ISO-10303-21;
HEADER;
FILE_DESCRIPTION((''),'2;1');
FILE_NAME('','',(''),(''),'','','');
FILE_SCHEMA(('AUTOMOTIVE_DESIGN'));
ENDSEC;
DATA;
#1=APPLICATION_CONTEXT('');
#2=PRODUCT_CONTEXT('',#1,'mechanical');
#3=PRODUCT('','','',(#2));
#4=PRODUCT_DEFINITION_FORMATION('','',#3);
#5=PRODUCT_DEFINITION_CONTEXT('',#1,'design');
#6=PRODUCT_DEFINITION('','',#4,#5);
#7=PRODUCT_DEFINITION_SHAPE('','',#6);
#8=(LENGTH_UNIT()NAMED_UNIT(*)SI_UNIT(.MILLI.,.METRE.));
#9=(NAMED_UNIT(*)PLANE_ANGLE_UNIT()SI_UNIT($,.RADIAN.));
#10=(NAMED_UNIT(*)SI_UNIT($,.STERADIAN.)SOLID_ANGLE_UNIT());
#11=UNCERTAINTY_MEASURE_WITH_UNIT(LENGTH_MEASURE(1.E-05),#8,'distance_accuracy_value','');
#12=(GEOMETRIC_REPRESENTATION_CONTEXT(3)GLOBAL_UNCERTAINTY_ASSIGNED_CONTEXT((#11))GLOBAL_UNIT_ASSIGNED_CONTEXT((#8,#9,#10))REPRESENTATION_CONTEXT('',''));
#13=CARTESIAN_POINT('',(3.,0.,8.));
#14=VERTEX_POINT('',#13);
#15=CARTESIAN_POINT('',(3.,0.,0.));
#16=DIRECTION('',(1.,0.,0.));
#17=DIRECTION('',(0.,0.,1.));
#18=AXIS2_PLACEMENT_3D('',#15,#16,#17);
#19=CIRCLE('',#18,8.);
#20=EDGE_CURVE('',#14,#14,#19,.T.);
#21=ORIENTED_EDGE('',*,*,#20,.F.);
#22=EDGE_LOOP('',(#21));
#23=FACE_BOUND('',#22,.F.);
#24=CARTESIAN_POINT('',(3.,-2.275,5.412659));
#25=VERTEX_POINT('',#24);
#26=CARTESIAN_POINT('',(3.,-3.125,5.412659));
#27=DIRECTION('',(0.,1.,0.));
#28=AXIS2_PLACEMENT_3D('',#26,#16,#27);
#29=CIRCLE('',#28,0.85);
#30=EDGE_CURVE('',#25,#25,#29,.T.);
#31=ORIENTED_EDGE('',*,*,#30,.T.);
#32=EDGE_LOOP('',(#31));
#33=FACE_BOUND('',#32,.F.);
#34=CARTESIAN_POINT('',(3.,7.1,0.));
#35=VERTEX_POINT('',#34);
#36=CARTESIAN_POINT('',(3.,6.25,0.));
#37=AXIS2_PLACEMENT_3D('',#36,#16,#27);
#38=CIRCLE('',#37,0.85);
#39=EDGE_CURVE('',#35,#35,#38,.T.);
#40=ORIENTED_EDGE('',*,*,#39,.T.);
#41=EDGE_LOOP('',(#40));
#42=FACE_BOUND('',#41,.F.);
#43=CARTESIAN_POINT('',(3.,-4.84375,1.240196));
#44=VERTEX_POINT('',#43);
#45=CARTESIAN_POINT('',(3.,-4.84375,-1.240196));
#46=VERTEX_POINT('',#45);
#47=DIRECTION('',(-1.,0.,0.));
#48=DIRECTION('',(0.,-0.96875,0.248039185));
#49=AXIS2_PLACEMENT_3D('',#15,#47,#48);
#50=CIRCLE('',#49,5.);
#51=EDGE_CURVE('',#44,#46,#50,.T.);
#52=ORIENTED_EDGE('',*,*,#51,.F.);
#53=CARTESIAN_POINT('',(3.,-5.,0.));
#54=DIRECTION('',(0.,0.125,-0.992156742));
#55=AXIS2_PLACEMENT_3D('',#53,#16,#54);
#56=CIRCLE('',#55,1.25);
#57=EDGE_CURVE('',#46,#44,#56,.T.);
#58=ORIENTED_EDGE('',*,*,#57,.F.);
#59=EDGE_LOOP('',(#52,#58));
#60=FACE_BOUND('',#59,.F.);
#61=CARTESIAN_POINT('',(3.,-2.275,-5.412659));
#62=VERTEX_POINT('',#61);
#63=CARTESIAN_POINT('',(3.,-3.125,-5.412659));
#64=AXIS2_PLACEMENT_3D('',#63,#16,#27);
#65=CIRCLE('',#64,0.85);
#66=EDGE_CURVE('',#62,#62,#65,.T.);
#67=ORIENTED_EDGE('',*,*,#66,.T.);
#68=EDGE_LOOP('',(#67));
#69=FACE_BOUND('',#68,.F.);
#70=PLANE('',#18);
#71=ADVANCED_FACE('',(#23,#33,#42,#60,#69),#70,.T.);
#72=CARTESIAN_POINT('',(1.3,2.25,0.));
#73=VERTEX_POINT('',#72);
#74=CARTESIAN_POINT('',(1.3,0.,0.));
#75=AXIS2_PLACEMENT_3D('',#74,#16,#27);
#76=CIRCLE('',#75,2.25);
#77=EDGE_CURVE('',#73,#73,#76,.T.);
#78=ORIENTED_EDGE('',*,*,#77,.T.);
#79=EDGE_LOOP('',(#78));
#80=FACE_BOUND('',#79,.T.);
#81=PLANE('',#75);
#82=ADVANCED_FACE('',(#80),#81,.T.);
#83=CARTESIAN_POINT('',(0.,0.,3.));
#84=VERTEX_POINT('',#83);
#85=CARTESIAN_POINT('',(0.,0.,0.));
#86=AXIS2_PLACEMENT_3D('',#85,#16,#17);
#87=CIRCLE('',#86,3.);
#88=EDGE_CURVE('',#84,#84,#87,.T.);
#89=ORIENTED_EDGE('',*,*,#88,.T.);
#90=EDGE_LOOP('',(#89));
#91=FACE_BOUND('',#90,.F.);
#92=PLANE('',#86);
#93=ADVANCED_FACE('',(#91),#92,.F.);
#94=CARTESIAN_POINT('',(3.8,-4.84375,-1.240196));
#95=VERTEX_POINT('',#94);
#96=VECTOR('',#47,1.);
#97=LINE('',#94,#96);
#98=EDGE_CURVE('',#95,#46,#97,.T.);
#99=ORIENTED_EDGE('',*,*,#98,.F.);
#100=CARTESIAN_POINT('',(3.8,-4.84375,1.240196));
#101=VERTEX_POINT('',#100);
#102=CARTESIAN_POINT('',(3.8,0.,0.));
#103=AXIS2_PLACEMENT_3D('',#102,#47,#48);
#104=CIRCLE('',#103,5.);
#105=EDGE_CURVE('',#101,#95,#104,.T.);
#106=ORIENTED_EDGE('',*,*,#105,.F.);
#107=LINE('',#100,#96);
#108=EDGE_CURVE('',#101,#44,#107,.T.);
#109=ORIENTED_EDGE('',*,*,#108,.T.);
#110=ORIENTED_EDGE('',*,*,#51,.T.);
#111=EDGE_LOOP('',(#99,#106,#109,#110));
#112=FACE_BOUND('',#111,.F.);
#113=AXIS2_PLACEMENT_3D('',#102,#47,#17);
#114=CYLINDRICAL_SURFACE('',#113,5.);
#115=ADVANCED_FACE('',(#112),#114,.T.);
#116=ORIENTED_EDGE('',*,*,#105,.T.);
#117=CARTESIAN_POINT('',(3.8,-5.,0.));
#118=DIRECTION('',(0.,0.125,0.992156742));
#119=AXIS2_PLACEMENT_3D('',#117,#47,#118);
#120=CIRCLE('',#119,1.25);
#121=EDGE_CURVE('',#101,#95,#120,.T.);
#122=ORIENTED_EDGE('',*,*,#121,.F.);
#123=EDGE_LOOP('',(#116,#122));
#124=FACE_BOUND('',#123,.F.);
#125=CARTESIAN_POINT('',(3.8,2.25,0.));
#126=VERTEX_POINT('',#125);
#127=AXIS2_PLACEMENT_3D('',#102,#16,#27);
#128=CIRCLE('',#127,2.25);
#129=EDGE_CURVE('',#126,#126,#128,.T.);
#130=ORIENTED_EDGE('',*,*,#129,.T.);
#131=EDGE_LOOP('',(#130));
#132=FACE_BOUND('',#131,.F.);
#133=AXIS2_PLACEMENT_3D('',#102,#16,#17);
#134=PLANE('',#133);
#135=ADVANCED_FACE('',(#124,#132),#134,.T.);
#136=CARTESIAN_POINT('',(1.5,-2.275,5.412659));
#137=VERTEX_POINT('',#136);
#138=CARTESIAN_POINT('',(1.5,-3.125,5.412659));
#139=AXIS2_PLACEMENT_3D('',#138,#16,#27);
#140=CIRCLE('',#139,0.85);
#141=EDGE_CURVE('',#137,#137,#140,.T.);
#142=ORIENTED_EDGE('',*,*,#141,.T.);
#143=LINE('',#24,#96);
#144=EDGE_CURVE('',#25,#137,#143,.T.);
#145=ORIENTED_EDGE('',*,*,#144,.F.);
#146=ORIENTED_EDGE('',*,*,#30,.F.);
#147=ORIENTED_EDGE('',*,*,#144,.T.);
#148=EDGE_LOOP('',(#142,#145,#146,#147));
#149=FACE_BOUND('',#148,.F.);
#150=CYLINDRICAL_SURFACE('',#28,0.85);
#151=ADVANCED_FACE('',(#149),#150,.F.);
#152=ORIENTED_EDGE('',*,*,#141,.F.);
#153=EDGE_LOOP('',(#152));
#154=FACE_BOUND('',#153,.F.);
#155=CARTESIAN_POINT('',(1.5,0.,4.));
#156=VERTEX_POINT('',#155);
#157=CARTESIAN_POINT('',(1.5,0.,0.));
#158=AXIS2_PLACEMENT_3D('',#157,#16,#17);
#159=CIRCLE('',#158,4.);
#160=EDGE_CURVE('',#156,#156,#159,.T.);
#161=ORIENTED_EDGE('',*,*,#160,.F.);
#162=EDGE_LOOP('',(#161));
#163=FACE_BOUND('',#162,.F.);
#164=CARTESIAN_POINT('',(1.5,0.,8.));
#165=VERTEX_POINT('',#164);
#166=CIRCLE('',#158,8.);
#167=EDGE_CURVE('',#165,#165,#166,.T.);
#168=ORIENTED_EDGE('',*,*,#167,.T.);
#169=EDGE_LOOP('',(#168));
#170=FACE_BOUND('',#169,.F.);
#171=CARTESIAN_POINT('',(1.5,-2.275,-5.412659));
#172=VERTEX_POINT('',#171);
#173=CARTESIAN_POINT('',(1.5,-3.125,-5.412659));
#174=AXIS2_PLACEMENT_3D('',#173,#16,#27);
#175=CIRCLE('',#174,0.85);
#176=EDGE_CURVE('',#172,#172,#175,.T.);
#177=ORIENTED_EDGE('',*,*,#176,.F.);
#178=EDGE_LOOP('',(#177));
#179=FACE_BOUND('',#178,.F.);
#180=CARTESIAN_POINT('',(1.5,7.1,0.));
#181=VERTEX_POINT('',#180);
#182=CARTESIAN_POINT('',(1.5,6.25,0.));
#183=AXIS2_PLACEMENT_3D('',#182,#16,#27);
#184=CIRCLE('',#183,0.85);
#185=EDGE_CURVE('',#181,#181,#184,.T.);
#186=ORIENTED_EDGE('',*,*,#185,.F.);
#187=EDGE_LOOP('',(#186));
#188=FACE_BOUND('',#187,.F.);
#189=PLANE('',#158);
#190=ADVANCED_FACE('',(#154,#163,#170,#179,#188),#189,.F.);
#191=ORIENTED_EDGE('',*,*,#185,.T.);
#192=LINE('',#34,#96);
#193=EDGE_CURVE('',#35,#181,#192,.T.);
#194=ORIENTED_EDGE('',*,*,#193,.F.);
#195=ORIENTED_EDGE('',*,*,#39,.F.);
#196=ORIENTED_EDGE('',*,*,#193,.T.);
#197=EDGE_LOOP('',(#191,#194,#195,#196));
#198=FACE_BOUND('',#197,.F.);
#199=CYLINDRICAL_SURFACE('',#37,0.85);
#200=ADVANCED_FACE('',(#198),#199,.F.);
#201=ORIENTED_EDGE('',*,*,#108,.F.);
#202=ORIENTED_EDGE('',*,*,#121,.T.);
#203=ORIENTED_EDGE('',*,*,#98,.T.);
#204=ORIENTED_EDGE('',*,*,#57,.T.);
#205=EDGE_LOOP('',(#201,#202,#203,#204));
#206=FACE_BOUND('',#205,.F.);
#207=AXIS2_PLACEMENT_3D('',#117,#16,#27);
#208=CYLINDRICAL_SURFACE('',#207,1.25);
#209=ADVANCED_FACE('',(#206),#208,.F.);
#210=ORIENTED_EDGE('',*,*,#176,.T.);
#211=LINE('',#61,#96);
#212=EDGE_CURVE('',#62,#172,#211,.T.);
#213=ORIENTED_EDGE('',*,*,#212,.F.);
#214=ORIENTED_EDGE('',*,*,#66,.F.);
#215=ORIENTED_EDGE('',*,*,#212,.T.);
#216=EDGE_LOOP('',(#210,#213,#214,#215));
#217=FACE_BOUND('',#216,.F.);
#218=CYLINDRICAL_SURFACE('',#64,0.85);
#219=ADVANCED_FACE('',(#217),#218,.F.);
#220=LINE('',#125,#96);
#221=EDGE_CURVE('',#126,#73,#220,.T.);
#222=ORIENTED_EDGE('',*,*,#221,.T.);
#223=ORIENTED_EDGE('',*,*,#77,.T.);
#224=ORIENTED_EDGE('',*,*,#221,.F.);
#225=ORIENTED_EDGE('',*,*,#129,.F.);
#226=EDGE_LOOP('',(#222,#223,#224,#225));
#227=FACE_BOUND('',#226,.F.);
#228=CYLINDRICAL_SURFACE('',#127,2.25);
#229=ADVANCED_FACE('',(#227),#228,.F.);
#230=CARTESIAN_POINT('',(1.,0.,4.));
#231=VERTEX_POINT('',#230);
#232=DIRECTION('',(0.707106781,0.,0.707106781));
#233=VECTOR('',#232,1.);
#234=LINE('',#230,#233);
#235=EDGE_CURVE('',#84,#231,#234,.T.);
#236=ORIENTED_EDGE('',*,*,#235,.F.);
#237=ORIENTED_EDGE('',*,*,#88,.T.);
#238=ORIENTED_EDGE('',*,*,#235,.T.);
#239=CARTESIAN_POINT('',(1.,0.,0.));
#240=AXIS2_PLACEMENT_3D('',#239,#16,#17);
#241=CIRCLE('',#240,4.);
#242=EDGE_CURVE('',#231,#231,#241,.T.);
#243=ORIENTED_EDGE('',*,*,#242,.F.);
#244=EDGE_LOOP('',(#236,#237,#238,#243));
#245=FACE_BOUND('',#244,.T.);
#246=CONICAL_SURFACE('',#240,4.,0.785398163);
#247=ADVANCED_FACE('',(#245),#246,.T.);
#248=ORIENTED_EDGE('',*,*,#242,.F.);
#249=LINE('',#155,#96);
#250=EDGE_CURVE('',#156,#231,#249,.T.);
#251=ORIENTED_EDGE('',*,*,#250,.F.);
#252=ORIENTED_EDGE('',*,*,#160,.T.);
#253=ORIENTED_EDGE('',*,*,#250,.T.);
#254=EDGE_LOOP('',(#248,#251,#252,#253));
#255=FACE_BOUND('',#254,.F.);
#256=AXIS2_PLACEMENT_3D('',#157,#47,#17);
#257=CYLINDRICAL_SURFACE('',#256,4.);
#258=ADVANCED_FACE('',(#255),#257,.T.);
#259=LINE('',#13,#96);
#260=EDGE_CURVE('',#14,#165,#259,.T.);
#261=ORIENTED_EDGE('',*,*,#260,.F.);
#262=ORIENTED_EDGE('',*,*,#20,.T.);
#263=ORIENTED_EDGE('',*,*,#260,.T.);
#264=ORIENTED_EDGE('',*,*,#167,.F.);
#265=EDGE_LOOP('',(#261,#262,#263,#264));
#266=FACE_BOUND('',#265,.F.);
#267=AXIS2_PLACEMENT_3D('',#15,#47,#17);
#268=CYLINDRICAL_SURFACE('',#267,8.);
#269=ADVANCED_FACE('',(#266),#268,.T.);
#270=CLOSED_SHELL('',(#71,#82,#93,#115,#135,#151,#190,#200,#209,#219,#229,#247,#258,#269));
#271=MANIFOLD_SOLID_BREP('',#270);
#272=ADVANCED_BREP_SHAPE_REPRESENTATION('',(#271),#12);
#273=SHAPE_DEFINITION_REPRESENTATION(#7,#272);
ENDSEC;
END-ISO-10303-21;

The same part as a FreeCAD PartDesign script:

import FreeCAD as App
import Part
import Sketcher
from FreeCAD import Vector
Q = App.Units.Quantity


def edges_at(feature, points):
    """Names of the edges that pass closest to the given points."""
    edges = feature.Shape.Edges
    near = lambda p: min(range(len(edges)), key=lambda i: edges[i].distToShape(Part.Vertex(*p))[0])
    return sorted({f"Edge{near(p) + 1}" for p in points})

doc = App.newDocument("Part")
body = doc.addObject("PartDesign::Body", "Body")

# Sketch on XZ plane
sketch1 = body.newObject("Sketcher::SketchObject", "Sketch")
sketch1.AttachmentSupport = (doc.getObject("XZ_Plane"), [""])
sketch1.MapMode = "FlatFace"
sketch1.addGeometry([
    Part.LineSegment(Vector(0, 4, 0), Vector(0, 0, 0)),  # 0
    Part.LineSegment(Vector(0, 0, 0), Vector(3.8, 0, 0)),  # 1
    Part.LineSegment(Vector(3.8, 0, 0), Vector(3.8, 5, 0)),  # 2
    Part.LineSegment(Vector(3.8, 5, 0), Vector(3, 5, 0)),  # 3
    Part.LineSegment(Vector(3, 5, 0), Vector(3, 8, 0)),  # 4
    Part.LineSegment(Vector(3, 8, 0), Vector(1.5, 8, 0)),  # 5
    Part.LineSegment(Vector(1.5, 8, 0), Vector(1.5, 4, 0)),  # 6
    Part.LineSegment(Vector(1.5, 4, 0), Vector(0, 4, 0)),  # 7
], False)
sketch1.addConstraint([
    Sketcher.Constraint("Coincident", 0, 2, 1, 1),
    Sketcher.Constraint("Coincident", 1, 2, 2, 1),
    Sketcher.Constraint("Coincident", 2, 2, 3, 1),
    Sketcher.Constraint("Coincident", 3, 2, 4, 1),
    Sketcher.Constraint("Coincident", 4, 2, 5, 1),
    Sketcher.Constraint("Coincident", 5, 2, 6, 1),
    Sketcher.Constraint("Coincident", 6, 2, 7, 1),
    Sketcher.Constraint("Coincident", 7, 2, 0, 1),
    Sketcher.Constraint("Vertical", 0),
    Sketcher.Constraint("Horizontal", 1),
    Sketcher.Constraint("Vertical", 2),
    Sketcher.Constraint("Horizontal", 3),
    Sketcher.Constraint("Vertical", 4),
    Sketcher.Constraint("Horizontal", 5),
    Sketcher.Constraint("Vertical", 6),
    Sketcher.Constraint("Horizontal", 7),
    Sketcher.Constraint("Coincident", 0, 2, -1, 1),
    Sketcher.Constraint("Equal", 5, 7),
    Sketcher.Constraint("Equal", 0, 6),
    Sketcher.Constraint("DistanceY", 0, 2, 0, 1, Q("4 mm")),
    Sketcher.Constraint("DistanceY", 2, 1, 2, 2, Q("5 mm")),
    Sketcher.Constraint("DistanceX", 1, 1, 1, 2, Q("3.8 mm")),
    Sketcher.Constraint("DistanceX", 3, 2, 3, 1, Q("0.8 mm")),
])
revolution = body.newObject("PartDesign::Revolution", "Revolution")
revolution.Profile = sketch1
revolution.ReferenceAxis = (sketch1, ["H_Axis"])
revolution.Angle = 360
doc.recompute()

chamfer = body.newObject("PartDesign::Chamfer", "Chamfer")
chamfer.Base = (revolution, edges_at(revolution, [(0, 0, -4)]))
chamfer.Size = 1

# Sketch on YZ plane
sketch2 = body.newObject("Sketcher::SketchObject", "Sketch001")
sketch2.AttachmentSupport = (doc.getObject("YZ_Plane"), [""])
sketch2.MapMode = "FlatFace"
sketch2.AttachmentOffset = App.Placement(Vector(0, 0, 3), App.Rotation())
sketch2.addGeometry([
    Part.Circle(Vector(6.2, 0, 0), Vector(0, 0, 1), 0.8),
    Part.Circle(Vector(-3.1, 5.4, 0), Vector(0, 0, 1), 0.8),
    Part.Circle(Vector(-3.1, -5.4, 0), Vector(0, 0, 1), 0.8),
], False)
sketch2.addConstraint([
    Sketcher.Constraint("Equal", 0, 1),
    Sketcher.Constraint("Equal", 1, 2),
    Sketcher.Constraint("Symmetric", 1, 3, 2, 3, -1),
    Sketcher.Constraint("PointOnObject", 0, 3, -1),
    Sketcher.Constraint("Diameter", 0, Q("1.7 mm")),
    Sketcher.Constraint("DistanceX", -1, 1, 0, 3, Q("6.25 mm")),
    Sketcher.Constraint("DistanceX", 1, 3, -1, 1, Q("3.125 mm")),
    Sketcher.Constraint("DistanceY", -1, 1, 1, 3, Q("5.412659 mm")),
])
pocket1 = body.newObject("PartDesign::Pocket", "Pocket")
pocket1.Profile = sketch2
pocket1.Type = "ThroughAll"

# Sketch on YZ plane
sketch3 = body.newObject("Sketcher::SketchObject", "Sketch002")
sketch3.AttachmentSupport = (doc.getObject("YZ_Plane"), [""])
sketch3.MapMode = "FlatFace"
sketch3.AttachmentOffset = App.Placement(Vector(0, 0, 3.8), App.Rotation())
sketch3.addGeometry(Part.Circle(Vector(-5, 0, 0), Vector(0, 0, 1), 1.2), False)
sketch3.addConstraint([
    Sketcher.Constraint("PointOnObject", 0, 3, -1),
    Sketcher.Constraint("Diameter", 0, Q("2.5 mm")),
    Sketcher.Constraint("DistanceX", 0, 3, -1, 1, Q("5 mm")),
])
pocket2 = body.newObject("PartDesign::Pocket", "Pocket001")
pocket2.Profile = sketch3
pocket2.Length = 0.8

# Sketch on YZ plane
sketch4 = body.newObject("Sketcher::SketchObject", "Sketch003")
sketch4.AttachmentSupport = (doc.getObject("YZ_Plane"), [""])
sketch4.MapMode = "FlatFace"
sketch4.AttachmentOffset = App.Placement(Vector(0, 0, 3.8), App.Rotation())
sketch4.addGeometry(Part.Circle(Vector(0, 0, 0), Vector(0, 0, 1), 2.2), False)
sketch4.addConstraint([
    Sketcher.Constraint("Coincident", 0, 3, -1, 1),
    Sketcher.Constraint("Diameter", 0, Q("4.5 mm")),
])
pocket3 = body.newObject("PartDesign::Pocket", "Pocket002")
pocket3.Profile = sketch4
pocket3.Length = 2.5

doc.recompute()
